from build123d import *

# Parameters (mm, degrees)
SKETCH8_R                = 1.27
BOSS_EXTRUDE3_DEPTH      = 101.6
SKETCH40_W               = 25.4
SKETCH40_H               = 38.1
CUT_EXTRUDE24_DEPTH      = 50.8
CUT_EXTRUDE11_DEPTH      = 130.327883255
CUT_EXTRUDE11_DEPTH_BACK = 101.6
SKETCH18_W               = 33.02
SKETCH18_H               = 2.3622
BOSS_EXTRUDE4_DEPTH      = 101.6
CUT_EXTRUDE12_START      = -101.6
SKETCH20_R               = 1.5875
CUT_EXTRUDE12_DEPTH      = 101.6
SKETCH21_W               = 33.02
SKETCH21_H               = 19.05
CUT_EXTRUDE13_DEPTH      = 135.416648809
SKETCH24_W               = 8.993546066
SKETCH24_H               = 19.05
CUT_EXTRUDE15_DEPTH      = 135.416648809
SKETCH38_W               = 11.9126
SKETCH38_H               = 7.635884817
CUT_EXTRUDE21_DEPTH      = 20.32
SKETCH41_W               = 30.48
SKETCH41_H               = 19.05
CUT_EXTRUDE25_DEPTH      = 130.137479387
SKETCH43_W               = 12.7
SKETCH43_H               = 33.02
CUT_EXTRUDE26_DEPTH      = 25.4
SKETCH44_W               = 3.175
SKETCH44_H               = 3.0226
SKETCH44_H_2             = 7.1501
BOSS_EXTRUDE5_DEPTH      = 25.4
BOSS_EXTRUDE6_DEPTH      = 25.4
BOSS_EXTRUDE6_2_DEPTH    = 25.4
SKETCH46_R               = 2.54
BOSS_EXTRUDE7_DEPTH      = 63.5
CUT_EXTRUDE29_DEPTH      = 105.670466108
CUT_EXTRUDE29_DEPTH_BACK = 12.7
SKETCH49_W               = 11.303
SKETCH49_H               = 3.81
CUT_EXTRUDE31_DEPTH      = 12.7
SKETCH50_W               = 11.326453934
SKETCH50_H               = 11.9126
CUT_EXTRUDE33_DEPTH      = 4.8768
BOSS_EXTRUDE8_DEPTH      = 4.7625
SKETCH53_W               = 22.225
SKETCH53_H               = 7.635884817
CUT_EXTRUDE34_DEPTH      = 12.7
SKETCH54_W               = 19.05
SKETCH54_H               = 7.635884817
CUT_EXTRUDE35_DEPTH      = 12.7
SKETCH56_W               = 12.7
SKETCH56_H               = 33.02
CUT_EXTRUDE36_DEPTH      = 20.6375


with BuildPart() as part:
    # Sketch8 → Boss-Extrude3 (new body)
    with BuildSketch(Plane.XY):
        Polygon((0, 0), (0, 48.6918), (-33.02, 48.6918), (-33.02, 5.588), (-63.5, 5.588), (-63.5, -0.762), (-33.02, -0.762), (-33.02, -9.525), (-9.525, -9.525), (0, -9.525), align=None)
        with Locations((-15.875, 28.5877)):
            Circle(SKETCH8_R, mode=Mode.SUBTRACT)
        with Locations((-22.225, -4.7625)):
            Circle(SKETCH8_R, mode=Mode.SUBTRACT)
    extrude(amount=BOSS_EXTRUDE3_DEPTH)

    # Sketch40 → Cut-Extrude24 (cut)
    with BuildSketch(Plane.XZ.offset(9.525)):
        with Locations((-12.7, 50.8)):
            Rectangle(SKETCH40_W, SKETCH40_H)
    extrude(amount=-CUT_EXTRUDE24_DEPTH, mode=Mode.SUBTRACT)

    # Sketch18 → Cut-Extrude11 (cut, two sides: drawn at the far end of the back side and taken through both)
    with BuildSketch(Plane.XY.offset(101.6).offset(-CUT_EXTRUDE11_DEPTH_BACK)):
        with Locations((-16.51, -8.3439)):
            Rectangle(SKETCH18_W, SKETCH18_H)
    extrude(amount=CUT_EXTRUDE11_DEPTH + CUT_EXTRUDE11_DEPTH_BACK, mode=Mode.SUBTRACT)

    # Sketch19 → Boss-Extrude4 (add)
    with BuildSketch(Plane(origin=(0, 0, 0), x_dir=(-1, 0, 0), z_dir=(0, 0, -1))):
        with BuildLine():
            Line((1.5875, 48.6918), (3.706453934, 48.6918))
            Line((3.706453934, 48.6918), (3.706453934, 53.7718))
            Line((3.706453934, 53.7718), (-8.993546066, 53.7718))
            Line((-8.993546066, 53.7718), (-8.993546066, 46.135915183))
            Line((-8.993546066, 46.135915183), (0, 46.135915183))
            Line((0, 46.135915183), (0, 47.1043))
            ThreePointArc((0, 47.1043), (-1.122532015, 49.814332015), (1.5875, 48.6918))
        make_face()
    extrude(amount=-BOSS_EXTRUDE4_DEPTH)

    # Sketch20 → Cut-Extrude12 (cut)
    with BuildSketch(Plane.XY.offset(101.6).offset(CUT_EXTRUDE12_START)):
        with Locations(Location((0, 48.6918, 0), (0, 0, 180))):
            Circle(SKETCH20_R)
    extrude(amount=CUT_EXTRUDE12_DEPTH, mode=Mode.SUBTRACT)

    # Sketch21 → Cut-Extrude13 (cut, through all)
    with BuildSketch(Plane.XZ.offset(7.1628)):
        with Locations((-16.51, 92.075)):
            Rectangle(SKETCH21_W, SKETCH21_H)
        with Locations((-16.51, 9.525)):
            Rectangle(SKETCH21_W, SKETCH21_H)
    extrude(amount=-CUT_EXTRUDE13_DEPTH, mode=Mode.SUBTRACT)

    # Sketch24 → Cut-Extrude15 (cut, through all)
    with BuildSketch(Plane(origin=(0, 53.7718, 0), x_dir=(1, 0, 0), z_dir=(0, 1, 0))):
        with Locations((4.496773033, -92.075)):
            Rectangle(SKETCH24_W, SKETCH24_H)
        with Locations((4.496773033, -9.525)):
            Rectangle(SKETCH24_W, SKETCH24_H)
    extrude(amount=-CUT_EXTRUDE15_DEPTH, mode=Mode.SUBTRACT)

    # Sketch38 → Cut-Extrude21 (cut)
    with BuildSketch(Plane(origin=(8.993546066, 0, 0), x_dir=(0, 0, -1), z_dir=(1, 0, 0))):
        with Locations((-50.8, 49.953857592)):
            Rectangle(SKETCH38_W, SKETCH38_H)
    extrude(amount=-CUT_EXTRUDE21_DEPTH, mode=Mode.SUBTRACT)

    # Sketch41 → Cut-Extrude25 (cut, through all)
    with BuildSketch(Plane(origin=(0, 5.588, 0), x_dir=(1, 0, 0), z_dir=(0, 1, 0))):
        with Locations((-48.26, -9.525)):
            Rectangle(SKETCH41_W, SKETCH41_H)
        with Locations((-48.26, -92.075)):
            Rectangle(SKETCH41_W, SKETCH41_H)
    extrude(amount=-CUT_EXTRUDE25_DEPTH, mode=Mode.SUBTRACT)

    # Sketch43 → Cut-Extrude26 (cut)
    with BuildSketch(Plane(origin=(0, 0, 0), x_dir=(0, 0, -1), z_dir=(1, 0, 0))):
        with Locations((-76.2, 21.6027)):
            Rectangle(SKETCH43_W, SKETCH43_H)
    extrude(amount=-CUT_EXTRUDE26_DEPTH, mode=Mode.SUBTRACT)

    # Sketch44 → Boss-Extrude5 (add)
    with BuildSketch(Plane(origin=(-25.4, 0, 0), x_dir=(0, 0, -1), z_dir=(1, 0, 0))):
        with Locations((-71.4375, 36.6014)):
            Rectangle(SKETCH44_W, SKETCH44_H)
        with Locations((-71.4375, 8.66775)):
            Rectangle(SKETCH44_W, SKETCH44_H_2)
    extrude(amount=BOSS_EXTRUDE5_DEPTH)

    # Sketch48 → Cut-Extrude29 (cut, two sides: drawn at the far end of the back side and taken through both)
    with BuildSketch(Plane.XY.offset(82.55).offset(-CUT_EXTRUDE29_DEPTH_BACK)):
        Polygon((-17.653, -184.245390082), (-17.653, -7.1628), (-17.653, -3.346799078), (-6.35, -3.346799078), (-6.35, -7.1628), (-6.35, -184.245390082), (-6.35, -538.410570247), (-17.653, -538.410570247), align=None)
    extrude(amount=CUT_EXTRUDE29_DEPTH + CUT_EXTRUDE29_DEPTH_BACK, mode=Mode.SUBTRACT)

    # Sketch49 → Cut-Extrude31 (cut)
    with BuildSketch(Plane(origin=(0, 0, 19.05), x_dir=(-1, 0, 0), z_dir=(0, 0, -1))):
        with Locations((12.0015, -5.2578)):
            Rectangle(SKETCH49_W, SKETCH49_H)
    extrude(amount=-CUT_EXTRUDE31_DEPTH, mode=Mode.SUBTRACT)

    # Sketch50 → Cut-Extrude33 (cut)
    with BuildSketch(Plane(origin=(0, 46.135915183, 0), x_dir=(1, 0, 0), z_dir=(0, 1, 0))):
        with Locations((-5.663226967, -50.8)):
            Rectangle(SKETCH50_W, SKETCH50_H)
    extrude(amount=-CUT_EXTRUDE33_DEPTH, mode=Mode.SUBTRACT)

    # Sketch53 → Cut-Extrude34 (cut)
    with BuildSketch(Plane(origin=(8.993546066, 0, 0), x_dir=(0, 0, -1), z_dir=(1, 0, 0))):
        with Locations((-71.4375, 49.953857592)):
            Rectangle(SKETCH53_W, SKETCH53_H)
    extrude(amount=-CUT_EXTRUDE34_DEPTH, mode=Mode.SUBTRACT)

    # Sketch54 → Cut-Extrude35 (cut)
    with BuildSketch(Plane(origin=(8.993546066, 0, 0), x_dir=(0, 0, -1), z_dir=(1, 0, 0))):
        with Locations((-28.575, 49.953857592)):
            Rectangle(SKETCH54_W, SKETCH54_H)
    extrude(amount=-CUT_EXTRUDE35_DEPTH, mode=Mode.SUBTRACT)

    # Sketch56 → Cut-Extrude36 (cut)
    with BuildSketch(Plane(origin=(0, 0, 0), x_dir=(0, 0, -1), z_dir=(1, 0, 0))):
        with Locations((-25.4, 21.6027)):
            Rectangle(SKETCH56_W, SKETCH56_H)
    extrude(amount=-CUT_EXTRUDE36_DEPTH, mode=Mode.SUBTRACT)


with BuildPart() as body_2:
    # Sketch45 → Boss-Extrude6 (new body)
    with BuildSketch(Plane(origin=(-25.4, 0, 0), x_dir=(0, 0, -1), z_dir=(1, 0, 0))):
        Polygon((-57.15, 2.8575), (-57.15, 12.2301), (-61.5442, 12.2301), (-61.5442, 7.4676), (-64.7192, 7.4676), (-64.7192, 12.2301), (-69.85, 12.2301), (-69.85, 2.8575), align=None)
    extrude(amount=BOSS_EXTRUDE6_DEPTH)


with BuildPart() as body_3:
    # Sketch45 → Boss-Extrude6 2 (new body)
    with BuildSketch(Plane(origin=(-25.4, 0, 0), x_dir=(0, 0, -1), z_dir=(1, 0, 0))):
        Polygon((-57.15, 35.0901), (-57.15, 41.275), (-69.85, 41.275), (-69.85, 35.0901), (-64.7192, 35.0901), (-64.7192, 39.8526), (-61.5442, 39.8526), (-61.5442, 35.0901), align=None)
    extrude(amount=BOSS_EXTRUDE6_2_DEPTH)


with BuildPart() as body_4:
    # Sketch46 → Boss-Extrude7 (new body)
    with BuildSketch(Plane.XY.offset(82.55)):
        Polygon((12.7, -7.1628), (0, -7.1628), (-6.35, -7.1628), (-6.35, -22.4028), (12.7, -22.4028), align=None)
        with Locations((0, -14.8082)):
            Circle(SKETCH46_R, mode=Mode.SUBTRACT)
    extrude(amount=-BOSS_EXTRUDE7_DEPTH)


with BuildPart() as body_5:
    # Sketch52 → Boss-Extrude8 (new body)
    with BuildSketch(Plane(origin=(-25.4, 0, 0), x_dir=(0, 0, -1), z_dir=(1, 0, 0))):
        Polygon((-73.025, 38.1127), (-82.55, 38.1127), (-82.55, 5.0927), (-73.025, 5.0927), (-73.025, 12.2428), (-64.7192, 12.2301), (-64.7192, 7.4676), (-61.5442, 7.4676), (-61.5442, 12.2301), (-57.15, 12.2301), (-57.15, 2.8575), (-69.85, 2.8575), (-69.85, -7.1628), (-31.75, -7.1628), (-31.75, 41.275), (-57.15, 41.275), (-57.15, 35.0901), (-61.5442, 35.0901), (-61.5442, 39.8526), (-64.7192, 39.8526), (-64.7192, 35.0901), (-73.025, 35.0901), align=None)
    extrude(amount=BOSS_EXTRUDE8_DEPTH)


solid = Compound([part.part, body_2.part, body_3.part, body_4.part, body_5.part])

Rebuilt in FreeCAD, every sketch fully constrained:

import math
import FreeCAD as App
import Part
import Sketcher

V = App.Vector
Q = App.Units.Quantity


def add_polygon(sketch, points):
    """Adds a closed chain of lines whose ends are joined by coincident constraints."""
    first, n = sketch.GeometryCount, len(points)
    for a, b in zip(points, points[1:] + points[:1]):
        sketch.addGeometry(Part.LineSegment(App.Vector(*a, 0), App.Vector(*b, 0)), False)
    for i in range(n):
        sketch.addConstraint(Sketcher.Constraint("Coincident", first + i, 2, first + (i + 1) % n, 1))

doc = App.newDocument("Part")
body = doc.addObject("PartDesign::Body", "Body")

# Sketch on XY plane
sketch1 = body.newObject("Sketcher::SketchObject", "Sketch")
sketch1.AttachmentSupport = (doc.getObject("XY_Plane"), [""])
sketch1.MapMode = "FlatFace"
add_polygon(sketch1, [(0, 48.7), (-33, 48.7), (-33, 5.6), (-63.5, 5.6), (-63.5, -0.8), (-33, -0.8), (-33, -9.5), (0, -9.5)])  # lines 0-7
sketch1.addGeometry(Part.Circle(V(-22.2, -4.8, 0), V(0, 0, 1), 1.3), False)  # 8
sketch1.addGeometry(Part.Circle(V(-15.9, 28.6, 0), V(0, 0, 1), 1.3), False)  # 9
sketch1.addConstraint(Sketcher.Constraint("Horizontal", 0))
sketch1.addConstraint(Sketcher.Constraint("Vertical", 1))
sketch1.addConstraint(Sketcher.Constraint("Horizontal", 2))
sketch1.addConstraint(Sketcher.Constraint("Vertical", 3))
sketch1.addConstraint(Sketcher.Constraint("Horizontal", 4))
sketch1.addConstraint(Sketcher.Constraint("Vertical", 5))
sketch1.addConstraint(Sketcher.Constraint("Horizontal", 6))
sketch1.addConstraint(Sketcher.Constraint("Vertical", 7))
sketch1.addConstraint(Sketcher.Constraint("Equal", 8, 9))
sketch1.addConstraint(Sketcher.Constraint("PointOnObject", 6, 2, -2))
sketch1.addConstraint(Sketcher.Constraint("Vertical", 1, 2, 4, 2))
sketch1.addConstraint(Sketcher.Constraint("Diameter", 8, Q("0.1 in")))
sketch1.addConstraint(Sketcher.Constraint("DistanceX", 0, 2, 0, 1, Q("1.3 in")))
sketch1.addConstraint(Sketcher.Constraint("DistanceX", 2, 2, 2, 1, Q("1.2 in")))
sketch1.addConstraint(Sketcher.Constraint("DistanceY", 3, 2, 3, 1, Q("0.25 in")))
sketch1.addConstraint(Sketcher.Constraint("DistanceY", 1, 2, 1, 1, Q("1.697 in")))
sketch1.addConstraint(Sketcher.Constraint("DistanceY", 5, 2, 5, 1, Q("0.345 in")))
sketch1.addConstraint(Sketcher.Constraint("DistanceY", -1, 1, 1, 2, Q("0.22 in")))
sketch1.addConstraint(Sketcher.Constraint("DistanceX", 8, 3, 9, 3, Q("0.25 in")))
sketch1.addConstraint(Sketcher.Constraint("DistanceX", 8, 3, -1, 1, Q("0.875 in")))
sketch1.addConstraint(Sketcher.Constraint("DistanceY", 8, 3, -1, 1, Q("0.1875 in")))
sketch1.addConstraint(Sketcher.Constraint("DistanceY", 8, 3, 9, 3, Q("1.313 in")))
pad1 = body.newObject("PartDesign::Pad", "Pad")
pad1.Profile = sketch1
pad1.Length = Q("4 in")

# Sketch on XZ plane
sketch2 = body.newObject("Sketcher::SketchObject", "Sketch001")
sketch2.AttachmentSupport = (doc.getObject("XZ_Plane"), [""])
sketch2.MapMode = "FlatFace"
sketch2.AttachmentOffset = App.Placement(V(0, 0, 0.375 * 25.4), App.Rotation())
add_polygon(sketch2, [(-25, 70), (-25, 32), (0, 32), (0, 70)])  # lines 0-3
sketch2.addConstraint(Sketcher.Constraint("Vertical", 0))
sketch2.addConstraint(Sketcher.Constraint("Horizontal", 1))
sketch2.addConstraint(Sketcher.Constraint("Vertical", 2))
sketch2.addConstraint(Sketcher.Constraint("Horizontal", 3))
sketch2.addConstraint(Sketcher.Constraint("PointOnObject", 1, 2, -2))
sketch2.addConstraint(Sketcher.Constraint("DistanceX", 1, 1, 1, 2, Q("1 in")))
sketch2.addConstraint(Sketcher.Constraint("DistanceY", 0, 2, 0, 1, Q("1.5 in")))
sketch2.addConstraint(Sketcher.Constraint("DistanceY", -1, 1, 0, 2, Q("1.25 in")))
pocket1 = body.newObject("PartDesign::Pocket", "Pocket")
pocket1.Profile = sketch2
pocket1.Length = Q("2 in")

# Sketch on XY plane
sketch3 = body.newObject("Sketcher::SketchObject", "Sketch002")
sketch3.AttachmentSupport = (doc.getObject("XY_Plane"), [""])
sketch3.MapMode = "FlatFace"
sketch3.AttachmentOffset = App.Placement(V(0, 0, 4 * 25.4), App.Rotation())
add_polygon(sketch3, [(-33, -7.2), (-33, -9.5), (0, -9.5), (0, -7.2)])  # lines 0-3
sketch3.addConstraint(Sketcher.Constraint("Vertical", 0))
sketch3.addConstraint(Sketcher.Constraint("Horizontal", 1))
sketch3.addConstraint(Sketcher.Constraint("Vertical", 2))
sketch3.addConstraint(Sketcher.Constraint("Horizontal", 3))
sketch3.addConstraint(Sketcher.Constraint("PointOnObject", 1, 2, -2))
sketch3.addConstraint(Sketcher.Constraint("DistanceX", 1, 1, 1, 2, Q("1.3 in")))
sketch3.addConstraint(Sketcher.Constraint("DistanceY", 0, 2, 0, 1, Q("0.093 in")))
sketch3.addConstraint(Sketcher.Constraint("DistanceY", 0, 2, -1, 1, Q("0.375 in")))
pocket2 = body.newObject("PartDesign::Pocket", "Pocket001")
pocket2.Profile = sketch3
pocket2.Type = "ThroughAll"
pocket2.Midplane = True

# Sketch on XY plane
sketch4 = body.newObject("Sketcher::SketchObject", "Sketch003")
sketch4.AttachmentSupport = (doc.getObject("XY_Plane"), [""])
sketch4.MapMode = "FlatFace"
sketch4.addGeometry(Part.LineSegment(V(-1.6, 48.7, 0), V(-3.7, 48.7, 0)), False)
sketch4.addGeometry(Part.LineSegment(V(-3.7, 48.7, 0), V(-3.7, 53.8, 0)), False)
sketch4.addGeometry(Part.LineSegment(V(-3.7, 53.8, 0), V(9, 53.8, 0)), False)
sketch4.addGeometry(Part.LineSegment(V(9, 53.8, 0), V(9, 46.1, 0)), False)
sketch4.addGeometry(Part.LineSegment(V(9, 46.1, 0), V(0, 46.1, 0)), False)
sketch4.addGeometry(Part.LineSegment(V(0, 46.1, 0), V(0, 47.1, 0)), False)
sketch4.addGeometry(Part.ArcOfCircle(Part.Circle(V(0, 48.7, 0), V(0, 0, 1), 1.6), math.radians(-90), math.radians(180)), False)
sketch4.addConstraint(Sketcher.Constraint("Coincident", 0, 2, 1, 1))
sketch4.addConstraint(Sketcher.Constraint("Coincident", 1, 2, 2, 1))
sketch4.addConstraint(Sketcher.Constraint("Coincident", 2, 2, 3, 1))
sketch4.addConstraint(Sketcher.Constraint("Coincident", 3, 2, 4, 1))
sketch4.addConstraint(Sketcher.Constraint("Coincident", 4, 2, 5, 1))
sketch4.addConstraint(Sketcher.Constraint("Coincident", 5, 2, 6, 1))
sketch4.addConstraint(Sketcher.Constraint("Coincident", 6, 2, 0, 1))
sketch4.addConstraint(Sketcher.Constraint("Horizontal", 0))
sketch4.addConstraint(Sketcher.Constraint("Vertical", 1))
sketch4.addConstraint(Sketcher.Constraint("Horizontal", 2))
sketch4.addConstraint(Sketcher.Constraint("Vertical", 3))
sketch4.addConstraint(Sketcher.Constraint("Horizontal", 4))
sketch4.addConstraint(Sketcher.Constraint("Vertical", 5))
sketch4.addConstraint(Sketcher.Constraint("PointOnObject", 6, 3, -2))
sketch4.addConstraint(Sketcher.Constraint("PointOnObject", 4, 2, -2))
sketch4.addConstraint(Sketcher.Constraint("Horizontal", 6, 3, 0, 2))
sketch4.addConstraint(Sketcher.Constraint("DistanceX", 2, 1, 2, 2, Q("0.5 in")))
sketch4.addConstraint(Sketcher.Constraint("DistanceY", 1, 1, 1, 2, Q("0.2 in")))
sketch4.addConstraint(Sketcher.Constraint("Radius", 6, Q("0.0625 in")))
sketch4.addConstraint(Sketcher.Constraint("DistanceY", -1, 1, 6, 3, Q("1.917 in")))
sketch4.addConstraint(Sketcher.Constraint("DistanceX", 0, 2, 0, 1, Q("2.118954 mm")))
sketch4.addConstraint(Sketcher.Constraint("DistanceY", 3, 2, 3, 1, Q("7.635885 mm")))
pad2 = body.newObject("PartDesign::Pad", "Pad001")
pad2.Profile = sketch4
pad2.Length = Q("4 in")

# Sketch on XY plane
sketch5 = body.newObject("Sketcher::SketchObject", "Sketch004")
sketch5.AttachmentSupport = (doc.getObject("XY_Plane"), [""])
sketch5.MapMode = "FlatFace"
sketch5.addGeometry(Part.Circle(V(0, 48.7, 0), V(0, 0, 1), 1.6), False)
sketch5.addConstraint(Sketcher.Constraint("PointOnObject", 0, 3, -2))
sketch5.addConstraint(Sketcher.Constraint("Diameter", 0, Q("0.125 in")))
sketch5.addConstraint(Sketcher.Constraint("DistanceY", -1, 1, 0, 3, Q("1.917 in")))
pocket3 = body.newObject("PartDesign::Pocket", "Pocket002")
pocket3.Profile = sketch5
pocket3.Length = Q("4 in")
pocket3.Reversed = True

# Sketch on XZ plane
sketch6 = body.newObject("Sketcher::SketchObject", "Sketch005")
sketch6.AttachmentSupport = (doc.getObject("XZ_Plane"), [""])
sketch6.MapMode = "FlatFace"
sketch6.AttachmentOffset = App.Placement(V(0, 0, 0.282 * 25.4), App.Rotation())
add_polygon(sketch6, [(-33, 102), (-33, 83), (0, 83), (0, 102)])  # lines 0-3
add_polygon(sketch6, [(-33, 19), (-33, 0), (0, 0), (0, 19)])  # lines 4-7
sketch6.addConstraint(Sketcher.Constraint("Vertical", 0))
sketch6.addConstraint(Sketcher.Constraint("Horizontal", 1))
sketch6.addConstraint(Sketcher.Constraint("Vertical", 2))
sketch6.addConstraint(Sketcher.Constraint("Horizontal", 3))
sketch6.addConstraint(Sketcher.Constraint("Vertical", 4))
sketch6.addConstraint(Sketcher.Constraint("Horizontal", 5))
sketch6.addConstraint(Sketcher.Constraint("Vertical", 6))
sketch6.addConstraint(Sketcher.Constraint("Horizontal", 7))
sketch6.addConstraint(Sketcher.Constraint("Coincident", 5, 2, -1, 1))
sketch6.addConstraint(Sketcher.Constraint("PointOnObject", 1, 2, -2))
sketch6.addConstraint(Sketcher.Constraint("Vertical", 3, 2, 4, 2))
sketch6.addConstraint(Sketcher.Constraint("Equal", 2, 4))
sketch6.addConstraint(Sketcher.Constraint("DistanceX", 1, 1, 1, 2, Q("1.3 in")))
sketch6.addConstraint(Sketcher.Constraint("DistanceY", -1, 1, 2, 2, Q("4 in")))
sketch6.addConstraint(Sketcher.Constraint("DistanceY", 0, 2, 0, 1, Q("0.75 in")))
pocket4 = body.newObject("PartDesign::Pocket", "Pocket003")
pocket4.Profile = sketch6
pocket4.Type = "ThroughAll"

# Sketch on XZ plane
sketch7 = body.newObject("Sketcher::SketchObject", "Sketch006")
sketch7.AttachmentSupport = (doc.getObject("XZ_Plane"), [""])
sketch7.MapMode = "FlatFace"
sketch7.AttachmentOffset = App.Placement(V(0, 0, -2.117 * 25.4), App.Rotation())
add_polygon(sketch7, [(0, 83), (0, 102), (9, 102), (9, 83)])  # lines 0-3
add_polygon(sketch7, [(0, 0), (0, 19), (9, 19), (9, 0)])  # lines 4-7
sketch7.addConstraint(Sketcher.Constraint("Vertical", 0))
sketch7.addConstraint(Sketcher.Constraint("Horizontal", 1))
sketch7.addConstraint(Sketcher.Constraint("Vertical", 2))
sketch7.addConstraint(Sketcher.Constraint("Horizontal", 3))
sketch7.addConstraint(Sketcher.Constraint("Vertical", 4))
sketch7.addConstraint(Sketcher.Constraint("Horizontal", 5))
sketch7.addConstraint(Sketcher.Constraint("Vertical", 6))
sketch7.addConstraint(Sketcher.Constraint("Horizontal", 7))
sketch7.addConstraint(Sketcher.Constraint("Coincident", 7, 2, -1, 1))
sketch7.addConstraint(Sketcher.Constraint("PointOnObject", 0, 2, -2))
sketch7.addConstraint(Sketcher.Constraint("Vertical", 2, 2, 5, 2))
sketch7.addConstraint(Sketcher.Constraint("Equal", 2, 4))
sketch7.addConstraint(Sketcher.Constraint("DistanceY", -1, 1, 0, 2, Q("4 in")))
sketch7.addConstraint(Sketcher.Constraint("DistanceY", 0, 1, 0, 2, Q("0.75 in")))
sketch7.addConstraint(Sketcher.Constraint("DistanceX", 1, 1, 1, 2, Q("8.993546 mm")))
pocket5 = body.newObject("PartDesign::Pocket", "Pocket004")
pocket5.Profile = sketch7
pocket5.Type = "ThroughAll"
pocket5.Reversed = True

# Sketch on YZ plane
sketch8 = body.newObject("Sketcher::SketchObject", "Sketch007")
sketch8.AttachmentSupport = (doc.getObject("YZ_Plane"), [""])
sketch8.MapMode = "FlatFace"
sketch8.AttachmentOffset = App.Placement(V(0, 0, 8.993546), App.Rotation())
add_polygon(sketch8, [(54, 57), (46, 57), (46, 45), (54, 45)])  # lines 0-3
sketch8.addConstraint(Sketcher.Constraint("Horizontal", 0))
sketch8.addConstraint(Sketcher.Constraint("Vertical", 1))
sketch8.addConstraint(Sketcher.Constraint("Horizontal", 2))
sketch8.addConstraint(Sketcher.Constraint("Vertical", 3))
sketch8.addConstraint(Sketcher.Constraint("DistanceY", 1, 2, 1, 1, Q("0.469 in")))
sketch8.addConstraint(Sketcher.Constraint("DistanceX", -1, 1, 2, 2, Q("2.117 in")))
sketch8.addConstraint(Sketcher.Constraint("DistanceY", -1, 1, 0, 2, Q("2.2345 in")))
sketch8.addConstraint(Sketcher.Constraint("DistanceX", 0, 2, 0, 1, Q("7.635885 mm")))
pocket6 = body.newObject("PartDesign::Pocket", "Pocket005")
pocket6.Profile = sketch8
pocket6.Length = Q("0.8 in")

# Sketch on XZ plane
sketch9 = body.newObject("Sketcher::SketchObject", "Sketch008")
sketch9.AttachmentSupport = (doc.getObject("XZ_Plane"), [""])
sketch9.MapMode = "FlatFace"
sketch9.AttachmentOffset = App.Placement(V(0, 0, -0.22 * 25.4), App.Rotation())
add_polygon(sketch9, [(-64, 0), (-64, 19), (-33, 19), (-33, 0)])  # lines 0-3
add_polygon(sketch9, [(-64, 83), (-64, 102), (-33, 102), (-33, 83)])  # lines 4-7
sketch9.addConstraint(Sketcher.Constraint("Vertical", 0))
sketch9.addConstraint(Sketcher.Constraint("Horizontal", 1))
sketch9.addConstraint(Sketcher.Constraint("Vertical", 2))
sketch9.addConstraint(Sketcher.Constraint("Horizontal", 3))
sketch9.addConstraint(Sketcher.Constraint("Vertical", 4))
sketch9.addConstraint(Sketcher.Constraint("Horizontal", 5))
sketch9.addConstraint(Sketcher.Constraint("Vertical", 6))
sketch9.addConstraint(Sketcher.Constraint("Horizontal", 7))
sketch9.addConstraint(Sketcher.Constraint("PointOnObject", 2, 2, -1))
sketch9.addConstraint(Sketcher.Constraint("Vertical", 3, 2, 4, 2))
sketch9.addConstraint(Sketcher.Constraint("Vertical", 2, 2, 5, 2))
sketch9.addConstraint(Sketcher.Constraint("Equal", 2, 4))
sketch9.addConstraint(Sketcher.Constraint("DistanceX", 1, 1, 1, 2, Q("1.2 in")))
sketch9.addConstraint(Sketcher.Constraint("DistanceY", -1, 1, 4, 2, Q("4 in")))
sketch9.addConstraint(Sketcher.Constraint("DistanceY", 0, 1, 0, 2, Q("0.75 in")))
sketch9.addConstraint(Sketcher.Constraint("DistanceX", 0, 2, -1, 1, Q("2.5 in")))
pocket7 = body.newObject("PartDesign::Pocket", "Pocket006")
pocket7.Profile = sketch9
pocket7.Type = "ThroughAll"
pocket7.Reversed = True

# Sketch on YZ plane
sketch10 = body.newObject("Sketcher::SketchObject", "Sketch009")
sketch10.AttachmentSupport = (doc.getObject("YZ_Plane"), [""])
sketch10.MapMode = "FlatFace"
add_polygon(sketch10, [(38, 83), (5, 83), (5, 70), (38, 70)])  # lines 0-3
sketch10.addConstraint(Sketcher.Constraint("Horizontal", 0))
sketch10.addConstraint(Sketcher.Constraint("Vertical", 1))
sketch10.addConstraint(Sketcher.Constraint("Horizontal", 2))
sketch10.addConstraint(Sketcher.Constraint("Vertical", 3))
sketch10.addConstraint(Sketcher.Constraint("DistanceX", 0, 2, 0, 1, Q("1.3 in")))
sketch10.addConstraint(Sketcher.Constraint("DistanceY", 1, 2, 1, 1, Q("0.5 in")))
sketch10.addConstraint(Sketcher.Constraint("DistanceY", -1, 1, 0, 2, Q("3.25 in")))
sketch10.addConstraint(Sketcher.Constraint("DistanceX", -1, 1, 0, 2, Q("0.2005 in")))
pocket8 = body.newObject("PartDesign::Pocket", "Pocket007")
pocket8.Profile = sketch10
pocket8.Length = Q("1 in")

# Sketch on YZ plane
sketch11 = body.newObject("Sketcher::SketchObject", "Sketch010")
sketch11.AttachmentSupport = (doc.getObject("YZ_Plane"), [""])
sketch11.MapMode = "FlatFace"
sketch11.AttachmentOffset = App.Placement(V(0, 0, -1 * 25.4), App.Rotation())
add_polygon(sketch11, [(38.1, 73), (35.1, 73), (35.1, 69.8), (38.1, 69.8)])  # lines 0-3
add_polygon(sketch11, [(12.2, 73), (5.1, 73), (5.1, 69.8), (12.2, 69.8)])  # lines 4-7
sketch11.addConstraint(Sketcher.Constraint("Horizontal", 0))
sketch11.addConstraint(Sketcher.Constraint("Vertical", 1))
sketch11.addConstraint(Sketcher.Constraint("Horizontal", 2))
sketch11.addConstraint(Sketcher.Constraint("Vertical", 3))
sketch11.addConstraint(Sketcher.Constraint("Horizontal", 4))
sketch11.addConstraint(Sketcher.Constraint("Vertical", 5))
sketch11.addConstraint(Sketcher.Constraint("Horizontal", 6))
sketch11.addConstraint(Sketcher.Constraint("Vertical", 7))
sketch11.addConstraint(Sketcher.Constraint("Horizontal", 3, 2, 4, 2))
sketch11.addConstraint(Sketcher.Constraint("Horizontal", 2, 2, 5, 2))
sketch11.addConstraint(Sketcher.Constraint("DistanceX", 4, 2, 3, 2, Q("1.3 in")))
sketch11.addConstraint(Sketcher.Constraint("DistanceX", 0, 2, 0, 1, Q("0.119 in")))
sketch11.addConstraint(Sketcher.Constraint("DistanceY", 1, 2, 1, 1, Q("0.125 in")))
sketch11.addConstraint(Sketcher.Constraint("DistanceY", -1, 1, 1, 2, Q("2.75 in")))
sketch11.addConstraint(Sketcher.Constraint("DistanceX", 4, 2, 4, 1, Q("0.2815 in")))
sketch11.addConstraint(Sketcher.Constraint("DistanceX", -1, 1, 6, 2, Q("0.482 in")))
pad3 = body.newObject("PartDesign::Pad", "Pad002")
pad3.Profile = sketch11
pad3.Length = Q("1 in")

# Sketch on XY plane
sketch12 = body.newObject("Sketcher::SketchObject", "Sketch011")
sketch12.AttachmentSupport = (doc.getObject("XY_Plane"), [""])
sketch12.MapMode = "FlatFace"
sketch12.AttachmentOffset = App.Placement(V(0, 0, 3.25 * 25.4), App.Rotation())
add_polygon(sketch12, [(-18, -3), (-18, -538), (-6, -538), (-6, -3)])  # lines 0-3
sketch12.addConstraint(Sketcher.Constraint("Vertical", 0))
sketch12.addConstraint(Sketcher.Constraint("Horizontal", 1))
sketch12.addConstraint(Sketcher.Constraint("Vertical", 2))
sketch12.addConstraint(Sketcher.Constraint("Horizontal", 3))
sketch12.addConstraint(Sketcher.Constraint("DistanceX", 1, 1, 1, 2, Q("0.445 in")))
sketch12.addConstraint(Sketcher.Constraint("DistanceX", 1, 2, -1, 1, Q("0.25 in")))
sketch12.addConstraint(Sketcher.Constraint("DistanceY", 0, 2, 0, 1, Q("535.063771 mm")))
sketch12.addConstraint(Sketcher.Constraint("DistanceY", 2, 2, -1, 1, Q("3.346799 mm")))
pocket9 = body.newObject("PartDesign::Pocket", "Pocket008")
pocket9.Profile = sketch12
pocket9.Type = "TwoLengths"
pocket9.Length = 105.670466
pocket9.Length2 = Q("0.5 in")
pocket9.Reversed = True

# Sketch on XY plane
sketch13 = body.newObject("Sketcher::SketchObject", "Sketch012")
sketch13.AttachmentSupport = (doc.getObject("XY_Plane"), [""])
sketch13.MapMode = "FlatFace"
sketch13.AttachmentOffset = App.Placement(V(0, 0, 0.75 * 25.4), App.Rotation())
add_polygon(sketch13, [(-6.3, -3.4), (-6.3, -7.2), (-17.7, -7.2), (-17.7, -3.4)])  # lines 0-3
sketch13.addConstraint(Sketcher.Constraint("Vertical", 0))
sketch13.addConstraint(Sketcher.Constraint("Horizontal", 1))
sketch13.addConstraint(Sketcher.Constraint("Vertical", 2))
sketch13.addConstraint(Sketcher.Constraint("Horizontal", 3))
sketch13.addConstraint(Sketcher.Constraint("DistanceY", 0, 2, 0, 1, Q("0.15 in")))
sketch13.addConstraint(Sketcher.Constraint("DistanceX", 1, 2, 1, 1, Q("0.445 in")))
sketch13.addConstraint(Sketcher.Constraint("DistanceX", 0, 2, -1, 1, Q("0.25 in")))
sketch13.addConstraint(Sketcher.Constraint("DistanceY", 0, 2, -1, 1, Q("0.282 in")))
pocket10 = body.newObject("PartDesign::Pocket", "Pocket009")
pocket10.Profile = sketch13
pocket10.Length = Q("0.5 in")
pocket10.Reversed = True

# Sketch on XZ plane
sketch14 = body.newObject("Sketcher::SketchObject", "Sketch013")
sketch14.AttachmentSupport = (doc.getObject("XZ_Plane"), [""])
sketch14.MapMode = "FlatFace"
sketch14.AttachmentOffset = App.Placement(V(0, 0, -46.135915), App.Rotation())
add_polygon(sketch14, [(-11, 45), (-11, 57), (0, 57), (0, 45)])  # lines 0-3
sketch14.addConstraint(Sketcher.Constraint("Vertical", 0))
sketch14.addConstraint(Sketcher.Constraint("Horizontal", 1))
sketch14.addConstraint(Sketcher.Constraint("Vertical", 2))
sketch14.addConstraint(Sketcher.Constraint("Horizontal", 3))
sketch14.addConstraint(Sketcher.Constraint("PointOnObject", 1, 2, -2))
sketch14.addConstraint(Sketcher.Constraint("DistanceY", 0, 1, 0, 2, Q("0.469 in")))
sketch14.addConstraint(Sketcher.Constraint("DistanceY", -1, 1, 0, 2, Q("2.2345 in")))
sketch14.addConstraint(Sketcher.Constraint("DistanceX", 1, 1, 1, 2, Q("11.326454 mm")))
pocket11 = body.newObject("PartDesign::Pocket", "Pocket010")
pocket11.Profile = sketch14
pocket11.Length = Q("0.192 in")
pocket11.Reversed = True

# Sketch on YZ plane
sketch15 = body.newObject("Sketcher::SketchObject", "Sketch014")
sketch15.AttachmentSupport = (doc.getObject("YZ_Plane"), [""])
sketch15.MapMode = "FlatFace"
sketch15.AttachmentOffset = App.Placement(V(0, 0, 8.993546), App.Rotation())
add_polygon(sketch15, [(54, 83), (46, 83), (46, 60), (54, 60)])  # lines 0-3
sketch15.addConstraint(Sketcher.Constraint("Horizontal", 0))
sketch15.addConstraint(Sketcher.Constraint("Vertical", 1))
sketch15.addConstraint(Sketcher.Constraint("Horizontal", 2))
sketch15.addConstraint(Sketcher.Constraint("Vertical", 3))
sketch15.addConstraint(Sketcher.Constraint("DistanceY", 1, 2, 1, 1, Q("0.875 in")))
sketch15.addConstraint(Sketcher.Constraint("DistanceY", -1, 1, 0, 2, Q("3.25 in")))
sketch15.addConstraint(Sketcher.Constraint("DistanceX", -1, 1, 2, 2, Q("2.117 in")))
sketch15.addConstraint(Sketcher.Constraint("DistanceX", 0, 2, 0, 1, Q("7.635885 mm")))
pocket12 = body.newObject("PartDesign::Pocket", "Pocket011")
pocket12.Profile = sketch15
pocket12.Length = Q("0.5 in")

# Sketch on YZ plane
sketch16 = body.newObject("Sketcher::SketchObject", "Sketch015")
sketch16.AttachmentSupport = (doc.getObject("YZ_Plane"), [""])
sketch16.MapMode = "FlatFace"
sketch16.AttachmentOffset = App.Placement(V(0, 0, 8.993546), App.Rotation())
add_polygon(sketch16, [(54, 38), (46, 38), (46, 19), (54, 19)])  # lines 0-3
sketch16.addConstraint(Sketcher.Constraint("Horizontal", 0))
sketch16.addConstraint(Sketcher.Constraint("Vertical", 1))
sketch16.addConstraint(Sketcher.Constraint("Horizontal", 2))
sketch16.addConstraint(Sketcher.Constraint("Vertical", 3))
sketch16.addConstraint(Sketcher.Constraint("DistanceY", 1, 2, 1, 1, Q("0.75 in")))
sketch16.addConstraint(Sketcher.Constraint("DistanceY", -1, 1, 0, 2, Q("1.5 in")))
sketch16.addConstraint(Sketcher.Constraint("DistanceX", -1, 1, 2, 2, Q("2.117 in")))
sketch16.addConstraint(Sketcher.Constraint("DistanceX", 0, 2, 0, 1, Q("7.635885 mm")))
pocket13 = body.newObject("PartDesign::Pocket", "Pocket012")
pocket13.Profile = sketch16
pocket13.Length = Q("0.5 in")

# Sketch on YZ plane
sketch17 = body.newObject("Sketcher::SketchObject", "Sketch016")
sketch17.AttachmentSupport = (doc.getObject("YZ_Plane"), [""])
sketch17.MapMode = "FlatFace"
add_polygon(sketch17, [(38, 32), (5, 32), (5, 19), (38, 19)])  # lines 0-3
sketch17.addConstraint(Sketcher.Constraint("Horizontal", 0))
sketch17.addConstraint(Sketcher.Constraint("Vertical", 1))
sketch17.addConstraint(Sketcher.Constraint("Horizontal", 2))
sketch17.addConstraint(Sketcher.Constraint("Vertical", 3))
sketch17.addConstraint(Sketcher.Constraint("DistanceX", 0, 2, 0, 1, Q("1.3 in")))
sketch17.addConstraint(Sketcher.Constraint("DistanceY", 1, 2, 1, 1, Q("0.5 in")))
sketch17.addConstraint(Sketcher.Constraint("DistanceY", -1, 1, 0, 2, Q("1.25 in")))
sketch17.addConstraint(Sketcher.Constraint("DistanceX", -1, 1, 0, 2, Q("0.2005 in")))
pocket14 = body.newObject("PartDesign::Pocket", "Pocket013")
pocket14.Profile = sketch17
pocket14.Length = Q("0.8125 in")
body2 = doc.addObject("PartDesign::Body", "Body001")

# Sketch on YZ plane
sketch18 = body2.newObject("Sketcher::SketchObject", "Sketch017")
sketch18.AttachmentSupport = (doc.getObject("YZ_Plane001"), [""])
sketch18.MapMode = "FlatFace"
sketch18.AttachmentOffset = App.Placement(V(0, 0, -1 * 25.4), App.Rotation())
add_polygon(sketch18, [(2.9, 57.1), (12.2, 57.1), (12.2, 61.5), (7.5, 61.5), (7.5, 64.7), (12.2, 64.7), (12.2, 69.8), (2.9, 69.8)])  # lines 0-7
sketch18.addConstraint(Sketcher.Constraint("Horizontal", 0))
sketch18.addConstraint(Sketcher.Constraint("Vertical", 1))
sketch18.addConstraint(Sketcher.Constraint("Horizontal", 2))
sketch18.addConstraint(Sketcher.Constraint("Vertical", 3))
sketch18.addConstraint(Sketcher.Constraint("Horizontal", 4))
sketch18.addConstraint(Sketcher.Constraint("Vertical", 5))
sketch18.addConstraint(Sketcher.Constraint("Horizontal", 6))
sketch18.addConstraint(Sketcher.Constraint("Vertical", 7))
sketch18.addConstraint(Sketcher.Constraint("Vertical", 1, 2, 4, 2))
sketch18.addConstraint(Sketcher.Constraint("DistanceY", 7, 2, 7, 1, Q("0.5 in")))
sketch18.addConstraint(Sketcher.Constraint("DistanceX", 0, 1, 0, 2, Q("0.369 in")))
sketch18.addConstraint(Sketcher.Constraint("DistanceX", 2, 2, 2, 1, Q("0.1875 in")))
sketch18.addConstraint(Sketcher.Constraint("DistanceY", 1, 1, 1, 2, Q("0.173 in")))
sketch18.addConstraint(Sketcher.Constraint("DistanceY", 3, 1, 3, 2, Q("0.125 in")))
sketch18.addConstraint(Sketcher.Constraint("DistanceY", -1, 1, 0, 2, Q("2.25 in")))
sketch18.addConstraint(Sketcher.Constraint("DistanceX", -1, 1, 2, 2, Q("0.294 in")))
pad4 = body2.newObject("PartDesign::Pad", "Pad003")
pad4.Profile = sketch18
pad4.Length = Q("1 in")
body3 = doc.addObject("PartDesign::Body", "Body002")

# Sketch on YZ plane
sketch19 = body3.newObject("Sketcher::SketchObject", "Sketch018")
sketch19.AttachmentSupport = (doc.getObject("YZ_Plane002"), [""])
sketch19.MapMode = "FlatFace"
sketch19.AttachmentOffset = App.Placement(V(0, 0, -1 * 25.4), App.Rotation())
add_polygon(sketch19, [(35.1, 57.1), (41.3, 57.1), (41.3, 69.8), (35.1, 69.8), (35.1, 64.7), (39.9, 64.7), (39.9, 61.5), (35.1, 61.5)])  # lines 0-7
sketch19.addConstraint(Sketcher.Constraint("Horizontal", 0))
sketch19.addConstraint(Sketcher.Constraint("Vertical", 1))
sketch19.addConstraint(Sketcher.Constraint("Horizontal", 2))
sketch19.addConstraint(Sketcher.Constraint("Vertical", 3))
sketch19.addConstraint(Sketcher.Constraint("Horizontal", 4))
sketch19.addConstraint(Sketcher.Constraint("Vertical", 5))
sketch19.addConstraint(Sketcher.Constraint("Horizontal", 6))
sketch19.addConstraint(Sketcher.Constraint("Vertical", 7))
sketch19.addConstraint(Sketcher.Constraint("Vertical", 3, 2, 6, 2))
sketch19.addConstraint(Sketcher.Constraint("DistanceY", 1, 1, 1, 2, Q("0.5 in")))
sketch19.addConstraint(Sketcher.Constraint("DistanceX", 4, 1, 4, 2, Q("0.1875 in")))
sketch19.addConstraint(Sketcher.Constraint("DistanceY", 3, 2, 3, 1, Q("0.202 in")))
sketch19.addConstraint(Sketcher.Constraint("DistanceY", 5, 2, 5, 1, Q("0.125 in")))
sketch19.addConstraint(Sketcher.Constraint("DistanceY", -1, 1, 0, 2, Q("2.25 in")))
sketch19.addConstraint(Sketcher.Constraint("DistanceX", 0, 1, 0, 2, Q("0.2435 in")))
sketch19.addConstraint(Sketcher.Constraint("DistanceX", -1, 1, 0, 2, Q("1.625 in")))
pad5 = body3.newObject("PartDesign::Pad", "Pad004")
pad5.Profile = sketch19
pad5.Length = Q("1 in")
body4 = doc.addObject("PartDesign::Body", "Body003")

# Sketch on XY plane
sketch20 = body4.newObject("Sketcher::SketchObject", "Sketch019")
sketch20.AttachmentSupport = (doc.getObject("XY_Plane003"), [""])
sketch20.MapMode = "FlatFace"
sketch20.AttachmentOffset = App.Placement(V(0, 0, 3.25 * 25.4), App.Rotation())
add_polygon(sketch20, [(12.7, -7.2), (-6.3, -7.2), (-6.3, -22.4), (12.7, -22.4)])  # lines 0-3
sketch20.addGeometry(Part.Circle(V(0, -14.8, 0), V(0, 0, 1), 2.5), False)  # 4
sketch20.addConstraint(Sketcher.Constraint("Horizontal", 0))
sketch20.addConstraint(Sketcher.Constraint("Vertical", 1))
sketch20.addConstraint(Sketcher.Constraint("Horizontal", 2))
sketch20.addConstraint(Sketcher.Constraint("Vertical", 3))
sketch20.addConstraint(Sketcher.Constraint("PointOnObject", 4, 3, -2))
sketch20.addConstraint(Sketcher.Constraint("Diameter", 4, Q("0.2 in")))
sketch20.addConstraint(Sketcher.Constraint("DistanceY", 1, 2, 1, 1, Q("0.6 in")))
sketch20.addConstraint(Sketcher.Constraint("DistanceX", 0, 2, 0, 1, Q("0.75 in")))
sketch20.addConstraint(Sketcher.Constraint("DistanceX", -1, 1, 2, 2, Q("0.5 in")))
sketch20.addConstraint(Sketcher.Constraint("DistanceY", 4, 3, -1, 1, Q("0.583 in")))
sketch20.addConstraint(Sketcher.Constraint("DistanceY", 0, 2, -1, 1, Q("0.282 in")))
pad6 = body4.newObject("PartDesign::Pad", "Pad005")
pad6.Profile = sketch20
pad6.Length = Q("2.5 in")
pad6.Reversed = True
body5 = doc.addObject("PartDesign::Body", "Body004")

# Sketch on YZ plane
sketch21 = body5.newObject("Sketcher::SketchObject", "Sketch020")
sketch21.AttachmentSupport = (doc.getObject("YZ_Plane004"), [""])
sketch21.MapMode = "FlatFace"
sketch21.AttachmentOffset = App.Placement(V(0, 0, -1 * 25.4), App.Rotation())
add_polygon(sketch21, [(38.1, 73), (38.1, 82.5), (5.1, 82.5), (5.1, 73), (12.2, 73), (12.2, 64.7), (7.5, 64.7), (7.5, 61.5), (12.2, 61.5), (12.2, 57.1), (2.9, 57.1), (2.9, 69.8), (-7.2, 69.8), (-7.2, 31.8), (41.3, 31.8), (41.3, 57.1), (35.1, 57.1), (35.1, 61.5), (39.9, 61.5), (39.9, 64.7), (35.1, 64.7), (35.1, 73)])  # lines 0-21
sketch21.addConstraint(Sketcher.Constraint("Vertical", 0))
sketch21.addConstraint(Sketcher.Constraint("Horizontal", 1))
sketch21.addConstraint(Sketcher.Constraint("Vertical", 2))
sketch21.addConstraint(Sketcher.Constraint("Horizontal", 3))
sketch21.addConstraint(Sketcher.Constraint("Horizontal", 5))
sketch21.addConstraint(Sketcher.Constraint("Vertical", 6))
sketch21.addConstraint(Sketcher.Constraint("Horizontal", 7))
sketch21.addConstraint(Sketcher.Constraint("Vertical", 8))
sketch21.addConstraint(Sketcher.Constraint("Horizontal", 9))
sketch21.addConstraint(Sketcher.Constraint("Vertical", 10))
sketch21.addConstraint(Sketcher.Constraint("Horizontal", 11))
sketch21.addConstraint(Sketcher.Constraint("Vertical", 12))
sketch21.addConstraint(Sketcher.Constraint("Horizontal", 13))
sketch21.addConstraint(Sketcher.Constraint("Vertical", 14))
sketch21.addConstraint(Sketcher.Constraint("Horizontal", 15))
sketch21.addConstraint(Sketcher.Constraint("Vertical", 16))
sketch21.addConstraint(Sketcher.Constraint("Horizontal", 17))
sketch21.addConstraint(Sketcher.Constraint("Vertical", 18))
sketch21.addConstraint(Sketcher.Constraint("Horizontal", 19))
sketch21.addConstraint(Sketcher.Constraint("Vertical", 20))
sketch21.addConstraint(Sketcher.Constraint("Horizontal", 21))
sketch21.addConstraint(Sketcher.Constraint("Horizontal", 9, 2, 14, 2))
sketch21.addConstraint(Sketcher.Constraint("Horizontal", 7, 2, 16, 2))
sketch21.addConstraint(Sketcher.Constraint("Horizontal", 5, 2, 18, 2))
sketch21.addConstraint(Sketcher.Constraint("Horizontal", 3, 2, 20, 2))
sketch21.addConstraint(Sketcher.Constraint("Vertical", 4, 2, 7, 2))
sketch21.addConstraint(Sketcher.Constraint("Vertical", 16, 2, 19, 2))
sketch21.addConstraint(Sketcher.Constraint("Equal", 7, 17))
sketch21.addConstraint(Sketcher.Constraint("DistanceY", 14, 1, 14, 2, Q("1 in")))
sketch21.addConstraint(Sketcher.Constraint("DistanceX", 1, 2, 1, 1, Q("1.3 in")))
sketch21.addConstraint(Sketcher.Constraint("DistanceY", 10, 1, 10, 2, Q("0.5 in")))
sketch21.addConstraint(Sketcher.Constraint("DistanceY", 14, 2, 0, 2, Q("1 in")))
sketch21.addConstraint(Sketcher.Constraint("DistanceX", 8, 2, 15, 2, Q("0.9 in")))
sketch21.addConstraint(Sketcher.Constraint("DistanceX", 5, 2, 5, 1, Q("0.1875 in")))
sketch21.addConstraint(Sketcher.Constraint("DistanceX", 9, 2, 9, 1, Q("0.369 in")))
sketch21.addConstraint(Sketcher.Constraint("DistanceX", 13, 1, 13, 2, Q("1.907 in")))
sketch21.addConstraint(Sketcher.Constraint("DistanceX", 21, 1, 21, 2, Q("0.119 in")))
sketch21.addConstraint(Sketcher.Constraint("DistanceY", 0, 1, 0, 2, Q("0.375 in")))
sketch21.addConstraint(Sketcher.Constraint("DistanceY", 6, 2, 6, 1, Q("0.125 in")))
sketch21.addConstraint(Sketcher.Constraint("DistanceY", 8, 2, 8, 1, Q("0.173 in")))
sketch21.addConstraint(Sketcher.Constraint("DistanceY", -1, 1, 0, 2, Q("3.25 in")))
sketch21.addConstraint(Sketcher.Constraint("DistanceX", 3, 1, 3, 2, Q("0.2815 in")))
sketch21.addConstraint(Sketcher.Constraint("DistanceX", 11, 2, 11, 1, Q("0.3945 in")))
sketch21.addConstraint(Sketcher.Constraint("DistanceX", -1, 1, 3, 2, Q("0.482 in")))
pad7 = body5.newObject("PartDesign::Pad", "Pad006")
pad7.Profile = sketch21
pad7.Length = Q("0.1875 in")

doc.recompute()
